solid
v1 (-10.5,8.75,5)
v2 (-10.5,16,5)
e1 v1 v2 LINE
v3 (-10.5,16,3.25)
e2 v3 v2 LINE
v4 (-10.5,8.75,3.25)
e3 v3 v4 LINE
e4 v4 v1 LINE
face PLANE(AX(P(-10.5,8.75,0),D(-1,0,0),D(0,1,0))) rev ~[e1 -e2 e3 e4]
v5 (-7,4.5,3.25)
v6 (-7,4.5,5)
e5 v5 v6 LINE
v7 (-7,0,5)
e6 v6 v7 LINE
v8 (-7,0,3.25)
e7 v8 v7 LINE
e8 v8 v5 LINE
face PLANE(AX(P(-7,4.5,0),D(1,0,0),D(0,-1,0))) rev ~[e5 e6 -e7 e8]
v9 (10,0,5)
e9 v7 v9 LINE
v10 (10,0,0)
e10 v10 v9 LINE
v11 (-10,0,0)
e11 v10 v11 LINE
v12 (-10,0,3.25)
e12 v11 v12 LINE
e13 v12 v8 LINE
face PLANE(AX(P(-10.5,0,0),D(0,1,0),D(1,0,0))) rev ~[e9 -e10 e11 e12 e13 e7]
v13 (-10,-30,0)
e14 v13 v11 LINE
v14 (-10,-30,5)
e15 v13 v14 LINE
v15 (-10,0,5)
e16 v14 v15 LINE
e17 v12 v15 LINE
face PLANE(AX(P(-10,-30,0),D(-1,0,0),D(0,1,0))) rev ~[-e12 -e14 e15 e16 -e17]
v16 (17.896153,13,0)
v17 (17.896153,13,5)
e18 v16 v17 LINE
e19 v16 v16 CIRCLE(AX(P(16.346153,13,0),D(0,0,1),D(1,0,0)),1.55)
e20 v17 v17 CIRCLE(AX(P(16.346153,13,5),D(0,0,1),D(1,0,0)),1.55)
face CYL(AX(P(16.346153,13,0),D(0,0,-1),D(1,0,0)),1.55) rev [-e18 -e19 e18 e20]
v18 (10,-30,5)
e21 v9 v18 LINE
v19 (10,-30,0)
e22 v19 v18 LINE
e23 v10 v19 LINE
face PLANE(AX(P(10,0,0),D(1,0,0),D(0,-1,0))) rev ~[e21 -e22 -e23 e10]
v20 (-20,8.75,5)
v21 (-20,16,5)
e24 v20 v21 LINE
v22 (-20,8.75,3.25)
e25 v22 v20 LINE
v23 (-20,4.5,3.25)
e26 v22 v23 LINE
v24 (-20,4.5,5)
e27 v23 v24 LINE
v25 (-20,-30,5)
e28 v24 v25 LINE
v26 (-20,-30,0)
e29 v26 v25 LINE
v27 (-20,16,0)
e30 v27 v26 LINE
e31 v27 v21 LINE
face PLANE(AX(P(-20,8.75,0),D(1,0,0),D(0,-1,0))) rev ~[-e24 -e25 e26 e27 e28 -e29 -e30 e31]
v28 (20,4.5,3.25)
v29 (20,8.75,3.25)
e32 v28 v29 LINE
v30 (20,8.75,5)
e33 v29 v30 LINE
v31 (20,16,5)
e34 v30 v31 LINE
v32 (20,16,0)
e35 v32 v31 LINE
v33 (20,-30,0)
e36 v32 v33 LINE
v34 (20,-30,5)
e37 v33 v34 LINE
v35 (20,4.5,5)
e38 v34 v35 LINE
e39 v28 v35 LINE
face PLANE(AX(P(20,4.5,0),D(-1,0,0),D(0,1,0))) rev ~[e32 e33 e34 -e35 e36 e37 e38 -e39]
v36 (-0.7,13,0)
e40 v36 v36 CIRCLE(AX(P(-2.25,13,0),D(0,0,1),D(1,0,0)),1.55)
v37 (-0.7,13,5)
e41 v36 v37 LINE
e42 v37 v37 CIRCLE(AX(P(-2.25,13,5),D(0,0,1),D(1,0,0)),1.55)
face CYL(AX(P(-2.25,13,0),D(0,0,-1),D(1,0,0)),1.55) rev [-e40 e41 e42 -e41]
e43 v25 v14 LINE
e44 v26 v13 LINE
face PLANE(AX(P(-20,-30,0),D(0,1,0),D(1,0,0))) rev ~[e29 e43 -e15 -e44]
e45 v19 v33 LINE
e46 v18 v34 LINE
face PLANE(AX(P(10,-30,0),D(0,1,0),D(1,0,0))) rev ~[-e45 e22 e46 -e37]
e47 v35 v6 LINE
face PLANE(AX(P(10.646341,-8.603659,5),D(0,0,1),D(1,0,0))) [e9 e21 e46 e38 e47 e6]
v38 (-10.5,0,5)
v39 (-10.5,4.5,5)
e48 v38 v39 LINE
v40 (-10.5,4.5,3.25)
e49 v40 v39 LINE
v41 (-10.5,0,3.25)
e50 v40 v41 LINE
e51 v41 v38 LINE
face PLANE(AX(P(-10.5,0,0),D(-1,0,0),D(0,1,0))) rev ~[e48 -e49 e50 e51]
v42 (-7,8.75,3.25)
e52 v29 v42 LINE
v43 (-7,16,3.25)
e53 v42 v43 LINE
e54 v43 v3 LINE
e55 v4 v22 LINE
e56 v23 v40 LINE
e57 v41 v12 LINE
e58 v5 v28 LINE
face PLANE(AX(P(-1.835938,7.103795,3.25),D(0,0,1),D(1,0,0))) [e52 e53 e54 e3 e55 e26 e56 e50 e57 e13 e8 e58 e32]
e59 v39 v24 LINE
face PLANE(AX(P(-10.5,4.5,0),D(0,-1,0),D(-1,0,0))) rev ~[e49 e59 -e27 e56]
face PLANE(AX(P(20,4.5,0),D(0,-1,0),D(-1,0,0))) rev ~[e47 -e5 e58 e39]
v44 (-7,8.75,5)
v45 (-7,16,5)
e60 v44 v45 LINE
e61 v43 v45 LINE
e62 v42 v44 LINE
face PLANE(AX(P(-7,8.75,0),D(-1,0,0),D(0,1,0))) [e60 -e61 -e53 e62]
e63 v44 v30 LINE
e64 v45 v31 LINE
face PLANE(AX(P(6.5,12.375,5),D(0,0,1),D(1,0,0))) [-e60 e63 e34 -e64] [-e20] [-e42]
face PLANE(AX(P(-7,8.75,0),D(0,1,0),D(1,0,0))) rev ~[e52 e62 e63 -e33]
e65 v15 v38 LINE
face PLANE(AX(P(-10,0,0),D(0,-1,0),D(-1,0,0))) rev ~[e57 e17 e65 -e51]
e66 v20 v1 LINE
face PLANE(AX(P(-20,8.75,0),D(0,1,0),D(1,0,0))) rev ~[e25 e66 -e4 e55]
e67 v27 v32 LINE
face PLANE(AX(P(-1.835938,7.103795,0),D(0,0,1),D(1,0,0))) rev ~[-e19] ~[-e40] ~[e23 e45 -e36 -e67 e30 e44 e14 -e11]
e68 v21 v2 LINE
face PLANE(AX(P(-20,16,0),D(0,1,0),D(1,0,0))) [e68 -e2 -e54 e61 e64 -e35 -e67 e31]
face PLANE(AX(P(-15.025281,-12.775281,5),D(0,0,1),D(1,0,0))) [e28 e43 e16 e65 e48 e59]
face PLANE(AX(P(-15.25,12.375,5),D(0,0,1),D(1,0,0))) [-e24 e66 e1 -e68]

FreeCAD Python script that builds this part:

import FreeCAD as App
import Part
import Sketcher
from FreeCAD import Vector
Q = App.Units.Quantity

doc = App.newDocument("Part")
body = doc.addObject("PartDesign::Body", "Body")
body.AllowCompound = True

# Sketch on XY plane
sketch1 = doc.addObject("Sketcher::SketchObject", "Sketch")
body.addObject(sketch1)
sketch1.AttachmentSupport = (doc.XY_Plane, [""])
sketch1.MapMode = "FlatFace"
sketch1.addGeometry(Part.LineSegment(Vector(-10.5, 4.5, 0), Vector(-20, 4.5, 0)), False)
sketch1.addGeometry(Part.LineSegment(Vector(-20, 4.5, 0), Vector(-20, -30, 0)), False)
sketch1.addGeometry(Part.LineSegment(Vector(-20, -30, 0), Vector(-10, -30, 0)), False)
sketch1.addGeometry(Part.LineSegment(Vector(-10, -30, 0), Vector(-10, 0, 0)), False)
sketch1.addGeometry(Part.LineSegment(Vector(-10, 0, 0), Vector(-10.5, 0, 0)), False)
sketch1.addGeometry(Part.LineSegment(Vector(-10.5, 0, 0), Vector(-10.5, 4.5, 0)), False)
sketch1.addGeometry(Part.LineSegment(Vector(-20, 16, 0), Vector(-20, 8.75, 0)), False)
sketch1.addGeometry(Part.LineSegment(Vector(-20, 8.75, 0), Vector(-10.5, 8.75, 0)), False)
sketch1.addGeometry(Part.LineSegment(Vector(-10.5, 8.75, 0), Vector(-10.5, 16, 0)), False)
sketch1.addGeometry(Part.LineSegment(Vector(-10.5, 16, 0), Vector(-20, 16, 0)), False)
sketch1.addGeometry(Part.LineSegment(Vector(-7, 16, 0), Vector(-7, 8.75, 0)), False)
sketch1.addGeometry(Part.LineSegment(Vector(-7, 8.75, 0), Vector(20, 8.75, 0)), False)
sketch1.addGeometry(Part.LineSegment(Vector(20, 8.75, 0), Vector(20, 16, 0)), False)
sketch1.addGeometry(Part.LineSegment(Vector(20, 16, 0), Vector(-7, 16, 0)), False)
sketch1.addGeometry(Part.Circle(Vector(-2.25, 13, 0), Vector(0, 0, 1), 1.55), False)
sketch1.addGeometry(Part.Circle(Vector(16.346153, 13, 0), Vector(0, 0, 1), 1.55), False)
sketch1.addGeometry(Part.LineSegment(Vector(20, -30, 0), Vector(20, 4.5, 0)), False)
sketch1.addGeometry(Part.LineSegment(Vector(20, 4.5, 0), Vector(-7, 4.5, 0)), False)
sketch1.addGeometry(Part.LineSegment(Vector(-7, 4.5, 0), Vector(-7, 0, 0)), False)
sketch1.addGeometry(Part.LineSegment(Vector(-7, 0, 0), Vector(10, 0, 0)), False)
sketch1.addGeometry(Part.LineSegment(Vector(10, 0, 0), Vector(10, -30, 0)), False)
sketch1.addGeometry(Part.LineSegment(Vector(10, -30, 0), Vector(20, -30, 0)), False)
sketch1.addConstraint(Sketcher.Constraint("Coincident", 0, 2, 1, 1))
sketch1.addConstraint(Sketcher.Constraint("Coincident", 1, 2, 2, 1))
sketch1.addConstraint(Sketcher.Constraint("Coincident", 2, 2, 3, 1))
sketch1.addConstraint(Sketcher.Constraint("Coincident", 3, 2, 4, 1))
sketch1.addConstraint(Sketcher.Constraint("Coincident", 4, 2, 5, 1))
sketch1.addConstraint(Sketcher.Constraint("Coincident", 5, 2, 0, 1))
sketch1.addConstraint(Sketcher.Constraint("Coincident", 6, 2, 7, 1))
sketch1.addConstraint(Sketcher.Constraint("Coincident", 7, 2, 8, 1))
sketch1.addConstraint(Sketcher.Constraint("Coincident", 8, 2, 9, 1))
sketch1.addConstraint(Sketcher.Constraint("Coincident", 9, 2, 6, 1))
sketch1.addConstraint(Sketcher.Constraint("Coincident", 10, 2, 11, 1))
sketch1.addConstraint(Sketcher.Constraint("Coincident", 11, 2, 12, 1))
sketch1.addConstraint(Sketcher.Constraint("Coincident", 12, 2, 13, 1))
sketch1.addConstraint(Sketcher.Constraint("Coincident", 13, 2, 10, 1))
sketch1.addConstraint(Sketcher.Constraint("Coincident", 16, 2, 17, 1))
sketch1.addConstraint(Sketcher.Constraint("Coincident", 17, 2, 18, 1))
sketch1.addConstraint(Sketcher.Constraint("Coincident", 18, 2, 19, 1))
sketch1.addConstraint(Sketcher.Constraint("Coincident", 19, 2, 20, 1))
sketch1.addConstraint(Sketcher.Constraint("Coincident", 20, 2, 21, 1))
sketch1.addConstraint(Sketcher.Constraint("Coincident", 21, 2, 16, 1))
sketch1.addConstraint(Sketcher.Constraint("Horizontal", 0))
sketch1.addConstraint(Sketcher.Constraint("Vertical", 1))
sketch1.addConstraint(Sketcher.Constraint("Horizontal", 2))
sketch1.addConstraint(Sketcher.Constraint("Vertical", 3))
sketch1.addConstraint(Sketcher.Constraint("Horizontal", 4))
sketch1.addConstraint(Sketcher.Constraint("Vertical", 5))
sketch1.addConstraint(Sketcher.Constraint("Vertical", 6))
sketch1.addConstraint(Sketcher.Constraint("Horizontal", 7))
sketch1.addConstraint(Sketcher.Constraint("Vertical", 8))
sketch1.addConstraint(Sketcher.Constraint("Horizontal", 9))
sketch1.addConstraint(Sketcher.Constraint("Vertical", 10))
sketch1.addConstraint(Sketcher.Constraint("Horizontal", 11))
sketch1.addConstraint(Sketcher.Constraint("Vertical", 12))
sketch1.addConstraint(Sketcher.Constraint("Horizontal", 13))
sketch1.addConstraint(Sketcher.Constraint("Vertical", 16))
sketch1.addConstraint(Sketcher.Constraint("Horizontal", 17))
sketch1.addConstraint(Sketcher.Constraint("Vertical", 18))
sketch1.addConstraint(Sketcher.Constraint("Horizontal", 19))
sketch1.addConstraint(Sketcher.Constraint("Vertical", 20))
sketch1.addConstraint(Sketcher.Constraint("Horizontal", 21))
sketch1.addConstraint(Sketcher.Constraint("Equal", 14, 15))
sketch1.addConstraint(Sketcher.Constraint("Symmetric", 3, 2, 19, 2, -1, 1))
sketch1.addConstraint(Sketcher.Constraint("Symmetric", 6, 2, 11, 2, -2))
sketch1.addConstraint(Sketcher.Constraint("Symmetric", 0, 2, 16, 2, -2))
sketch1.addConstraint(Sketcher.Constraint("PointOnObject", 3, 2, -1))
sketch1.addConstraint(Sketcher.Constraint("Horizontal", 14, 3, 15, 3))
sketch1.addConstraint(Sketcher.Constraint("Horizontal", 9, 2, 12, 2))
sketch1.addConstraint(Sketcher.Constraint("Horizontal", 2, 2, 20, 2))
sketch1.addConstraint(Sketcher.Constraint("Vertical", 1, 2, 6, 2))
sketch1.addConstraint(Sketcher.Constraint("Vertical", 5, 2, 7, 2))
sketch1.addConstraint(Sketcher.Constraint("Vertical", 13, 2, 17, 2))
sketch1.addConstraint(Sketcher.Constraint("Diameter", 14, Q("3.1 mm")))
sketch1.addConstraint(Sketcher.Constraint("DistanceX", 2, 1, 2, 2, Q("10 mm")))
sketch1.addConstraint(Sketcher.Constraint("DistanceX", 11, 1, 11, 2, Q("27 mm")))
sketch1.addConstraint(Sketcher.Constraint("DistanceY", 3, 1, 3, 2, Q("30 mm")))
sketch1.addConstraint(Sketcher.Constraint("DistanceX", 0, 2, 0, 1, Q("9.5 mm")))
sketch1.addConstraint(Sketcher.Constraint("DistanceY", 1, 2, 1, 1, Q("34.5 mm")))
sketch1.addConstraint(Sketcher.Constraint("DistanceY", -1, 1, 14, 3, Q("13 mm")))
sketch1.addConstraint(Sketcher.Constraint("DistanceX", 0, 2, -1, 1, Q("20 mm")))
sketch1.addConstraint(Sketcher.Constraint("DistanceY", -1, 1, 8, 2, Q("16 mm")))
sketch1.addConstraint(Sketcher.Constraint("DistanceY", 6, 2, 6, 1, Q("7.25 mm")))
sketch1.addConstraint(Sketcher.Constraint("DistanceX", 14, 3, -1, 1, Q("2.25 mm")))
sketch1.addConstraint(Sketcher.Constraint("DistanceX", -1, 1, 15, 3, Q("16.346153 mm")))
pad1 = doc.addObject("PartDesign::Pad", "Pad")
body.addObject(pad1)
pad1.Profile = sketch1
pad1.Length = 5

# Sketch on XY plane
sketch2 = doc.addObject("Sketcher::SketchObject", "Sketch001")
body.addObject(sketch2)
sketch2.AttachmentSupport = (doc.XY_Plane, [""])
sketch2.MapMode = "FlatFace"
sketch2.addGeometry(Part.LineSegment(Vector(-10.5, 8.75, 0), Vector(-20, 8.75, 0)), False)
sketch2.addGeometry(Part.LineSegment(Vector(-20, 8.75, 0), Vector(-20, 4.5, 0)), False)
sketch2.addGeometry(Part.LineSegment(Vector(-20, 4.5, 0), Vector(-10.5, 4.5, 0)), False)
sketch2.addGeometry(Part.LineSegment(Vector(-10.5, 4.5, 0), Vector(-10.5, 0, 0)), False)
sketch2.addGeometry(Part.LineSegment(Vector(-10.5, 0, 0), Vector(-7, 0, 0)), False)
sketch2.addGeometry(Part.LineSegment(Vector(-7, 0, 0), Vector(-7, 4.5, 0)), False)
sketch2.addGeometry(Part.LineSegment(Vector(-7, 4.5, 0), Vector(20, 4.5, 0)), False)
sketch2.addGeometry(Part.LineSegment(Vector(20, 4.5, 0), Vector(20, 8.75, 0)), False)
sketch2.addGeometry(Part.LineSegment(Vector(20, 8.75, 0), Vector(-7, 8.75, 0)), False)
sketch2.addGeometry(Part.LineSegment(Vector(-7, 8.75, 0), Vector(-7, 16, 0)), False)
sketch2.addGeometry(Part.LineSegment(Vector(-7, 16, 0), Vector(-10.5, 16, 0)), False)
sketch2.addGeometry(Part.LineSegment(Vector(-10.5, 16, 0), Vector(-10.5, 8.75, 0)), False)
sketch2.addConstraint(Sketcher.Constraint("Coincident", 0, 2, 1, 1))
sketch2.addConstraint(Sketcher.Constraint("Coincident", 1, 2, 2, 1))
sketch2.addConstraint(Sketcher.Constraint("Coincident", 2, 2, 3, 1))
sketch2.addConstraint(Sketcher.Constraint("Coincident", 3, 2, 4, 1))
sketch2.addConstraint(Sketcher.Constraint("Coincident", 4, 2, 5, 1))
sketch2.addConstraint(Sketcher.Constraint("Coincident", 5, 2, 6, 1))
sketch2.addConstraint(Sketcher.Constraint("Coincident", 6, 2, 7, 1))
sketch2.addConstraint(Sketcher.Constraint("Coincident", 7, 2, 8, 1))
sketch2.addConstraint(Sketcher.Constraint("Coincident", 8, 2, 9, 1))
sketch2.addConstraint(Sketcher.Constraint("Coincident", 9, 2, 10, 1))
sketch2.addConstraint(Sketcher.Constraint("Coincident", 10, 2, 11, 1))
sketch2.addConstraint(Sketcher.Constraint("Coincident", 11, 2, 0, 1))
sketch2.addConstraint(Sketcher.Constraint("Horizontal", 0))
sketch2.addConstraint(Sketcher.Constraint("Vertical", 1))
sketch2.addConstraint(Sketcher.Constraint("Horizontal", 2))
sketch2.addConstraint(Sketcher.Constraint("Vertical", 3))
sketch2.addConstraint(Sketcher.Constraint("Horizontal", 4))
sketch2.addConstraint(Sketcher.Constraint("Vertical", 5))
sketch2.addConstraint(Sketcher.Constraint("Horizontal", 6))
sketch2.addConstraint(Sketcher.Constraint("Vertical", 7))
sketch2.addConstraint(Sketcher.Constraint("Horizontal", 8))
sketch2.addConstraint(Sketcher.Constraint("Vertical", 9))
sketch2.addConstraint(Sketcher.Constraint("Horizontal", 10))
sketch2.addConstraint(Sketcher.Constraint("Vertical", 11))
sketch2.addConstraint(Sketcher.Constraint("Symmetric", 1, 2, 6, 2, -2))
sketch2.addConstraint(Sketcher.Constraint("PointOnObject", 3, 2, -1))
sketch2.addConstraint(Sketcher.Constraint("Horizontal", 0, 2, 7, 2))
sketch2.addConstraint(Sketcher.Constraint("Vertical", 5, 2, 8, 2))
sketch2.addConstraint(Sketcher.Constraint("Vertical", 3, 2, 10, 2))
sketch2.addConstraint(Sketcher.Constraint("DistanceX", 6, 1, 6, 2, Q("27 mm")))
sketch2.addConstraint(Sketcher.Constraint("DistanceX", 0, 2, 0, 1, Q("9.5 mm")))
sketch2.addConstraint(Sketcher.Constraint("DistanceX", 4, 1, 4, 2, Q("3.5 mm")))
sketch2.addConstraint(Sketcher.Constraint("DistanceY", 3, 2, 3, 1, Q("4.5 mm")))
sketch2.addConstraint(Sketcher.Constraint("DistanceY", -1, 1, 9, 2, Q("16 mm")))
sketch2.addConstraint(Sketcher.Constraint("DistanceY", 1, 2, 1, 1, Q("4.25 mm")))
pad2 = doc.addObject("PartDesign::Pad", "Pad001")
body.addObject(pad2)
pad2.Profile = sketch2
pad2.Length = 3.25

doc.recompute()
